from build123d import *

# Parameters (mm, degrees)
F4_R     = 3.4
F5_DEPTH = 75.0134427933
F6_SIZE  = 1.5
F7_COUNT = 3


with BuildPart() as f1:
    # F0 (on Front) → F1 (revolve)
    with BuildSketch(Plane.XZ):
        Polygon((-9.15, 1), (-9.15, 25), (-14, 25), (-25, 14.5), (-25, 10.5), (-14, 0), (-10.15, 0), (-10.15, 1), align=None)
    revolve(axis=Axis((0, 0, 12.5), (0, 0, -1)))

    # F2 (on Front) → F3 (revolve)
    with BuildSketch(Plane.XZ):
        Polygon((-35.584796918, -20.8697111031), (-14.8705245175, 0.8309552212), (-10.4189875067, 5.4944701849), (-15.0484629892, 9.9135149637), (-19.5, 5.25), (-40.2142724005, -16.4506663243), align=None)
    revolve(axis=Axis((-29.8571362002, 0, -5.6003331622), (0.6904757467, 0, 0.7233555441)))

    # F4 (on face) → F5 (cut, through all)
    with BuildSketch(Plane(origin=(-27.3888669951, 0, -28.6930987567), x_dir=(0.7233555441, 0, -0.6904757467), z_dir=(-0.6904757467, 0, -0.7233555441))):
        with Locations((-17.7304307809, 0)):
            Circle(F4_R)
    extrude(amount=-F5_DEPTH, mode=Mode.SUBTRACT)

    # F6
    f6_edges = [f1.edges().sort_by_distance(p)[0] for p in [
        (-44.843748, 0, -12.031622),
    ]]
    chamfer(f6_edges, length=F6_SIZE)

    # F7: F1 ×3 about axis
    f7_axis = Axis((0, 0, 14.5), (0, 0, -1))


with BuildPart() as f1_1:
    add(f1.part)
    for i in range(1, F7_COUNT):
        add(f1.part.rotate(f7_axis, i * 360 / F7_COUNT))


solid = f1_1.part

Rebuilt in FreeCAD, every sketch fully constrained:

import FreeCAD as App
import Part
import Sketcher

V = App.Vector


def edges_at(feature, points):
    """Names of the edges that pass closest to the given points."""
    edges = feature.Shape.Edges
    near = lambda p: min(range(len(edges)), key=lambda i: edges[i].distToShape(Part.Vertex(*p))[0])
    return sorted({f"Edge{near(p) + 1}" for p in points})

doc = App.newDocument("Part")
body = doc.addObject("PartDesign::Body", "Body")

# Sketch on XZ plane
sketch1 = doc.addObject("Sketcher::SketchObject", "Sketch")
body.addObject(sketch1)
sketch1.AttachmentSupport = (doc.XZ_Plane, [""])
sketch1.MapMode = "FlatFace"
sketch1.addGeometry(Part.LineSegment(V(-9.2, 1, 0), V(-9.2, 25, 0)), False)
sketch1.addGeometry(Part.LineSegment(V(-9.2, 25, 0), V(-14, 25, 0)), False)
sketch1.addGeometry(Part.LineSegment(V(-14, 25, 0), V(-25, 14.5, 0)), False)
sketch1.addGeometry(Part.LineSegment(V(-25, 14.5, 0), V(-25, 10.5, 0)), False)
sketch1.addGeometry(Part.LineSegment(V(-25, 10.5, 0), V(-14, 0, 0)), False)
sketch1.addGeometry(Part.LineSegment(V(-14, 0, 0), V(-10.2, 0, 0)), False)
sketch1.addGeometry(Part.LineSegment(V(-10.2, 0, 0), V(-10.2, 1, 0)), False)
sketch1.addGeometry(Part.LineSegment(V(-10.2, 1, 0), V(-9.2, 1, 0)), False)
sketch1.addConstraint(Sketcher.Constraint("Coincident", 0, 2, 1, 1))
sketch1.addConstraint(Sketcher.Constraint("Coincident", 1, 2, 2, 1))
sketch1.addConstraint(Sketcher.Constraint("Coincident", 2, 2, 3, 1))
sketch1.addConstraint(Sketcher.Constraint("Coincident", 3, 2, 4, 1))
sketch1.addConstraint(Sketcher.Constraint("Coincident", 4, 2, 5, 1))
sketch1.addConstraint(Sketcher.Constraint("Coincident", 5, 2, 6, 1))
sketch1.addConstraint(Sketcher.Constraint("Coincident", 6, 2, 7, 1))
sketch1.addConstraint(Sketcher.Constraint("Coincident", 7, 2, 0, 1))
sketch1.addConstraint(Sketcher.Constraint("Vertical", 0))
sketch1.addConstraint(Sketcher.Constraint("Horizontal", 1))
sketch1.addConstraint(Sketcher.Constraint("Vertical", 3))
sketch1.addConstraint(Sketcher.Constraint("Horizontal", 5))
sketch1.addConstraint(Sketcher.Constraint("Vertical", 6))
sketch1.addConstraint(Sketcher.Constraint("Horizontal", 7))
sketch1.addConstraint(Sketcher.Constraint("PointOnObject", 4, 2, -1))
sketch1.addConstraint(Sketcher.Constraint("Vertical", 1, 2, 4, 2))
sketch1.addConstraint(Sketcher.Constraint("Equal", 7, 6))
sketch1.addConstraint(Sketcher.Constraint("Equal", 2, 4))
sketch1.addConstraint(Sketcher.Constraint("DistanceX", 7, 1, 7, 2, 1.0))
sketch1.addConstraint(Sketcher.Constraint("DistanceY", 0, 1, 0, 2, 24.0))
sketch1.addConstraint(Sketcher.Constraint("DistanceY", 3, 2, 3, 1, 4.0))
sketch1.addConstraint(Sketcher.Constraint("DistanceX", 1, 2, -1, 1, 14.0))
sketch1.addConstraint(Sketcher.Constraint("DistanceX", 2, 2, -1, 1, 25.0))
sketch1.addConstraint(Sketcher.Constraint("DistanceX", 1, 2, 1, 1, 4.85))
revolution = doc.addObject("PartDesign::Revolution", "Revolution")
body.addObject(revolution)
revolution.Profile = sketch1
revolution.ReferenceAxis = (sketch1, ["V_Axis"])
revolution.Angle = 360

# Sketch on XZ plane
sketch2 = doc.addObject("Sketcher::SketchObject", "Sketch001")
body.addObject(sketch2)
sketch2.AttachmentSupport = (doc.XZ_Plane, [""])
sketch2.MapMode = "FlatFace"
sketch2.addGeometry(Part.LineSegment(V(-36, -21, 0), V(-15, 1, 0)), False)
sketch2.addGeometry(Part.LineSegment(V(-15, 1, 0), V(-10, 5, 0)), False)
sketch2.addGeometry(Part.LineSegment(V(-10, 5, 0), V(-15, 10, 0)), False)
sketch2.addGeometry(Part.LineSegment(V(-15, 10, 0), V(-20, 5, 0)), False)
sketch2.addGeometry(Part.LineSegment(V(-20, 5, 0), V(-40, -16, 0)), False)
sketch2.addGeometry(Part.LineSegment(V(-40, -16, 0), V(-36, -21, 0)), False)
sketch2.addGeometry(Part.LineSegment(V(-40, -16, 0), V(-15, 10, 0)), True)  # axis
sketch2.addConstraint(Sketcher.Constraint("Coincident", 0, 2, 1, 1))
sketch2.addConstraint(Sketcher.Constraint("Coincident", 1, 2, 2, 1))
sketch2.addConstraint(Sketcher.Constraint("Coincident", 2, 2, 3, 1))
sketch2.addConstraint(Sketcher.Constraint("Coincident", 3, 2, 4, 1))
sketch2.addConstraint(Sketcher.Constraint("Coincident", 4, 2, 5, 1))
sketch2.addConstraint(Sketcher.Constraint("Coincident", 5, 2, 0, 1))
sketch2.addConstraint(Sketcher.Constraint("Coincident", 6, 1, 4, 2))
sketch2.addConstraint(Sketcher.Constraint("Coincident", 6, 2, 2, 2))
sketch2.addConstraint(Sketcher.Constraint("Parallel", 0, 1))
sketch2.addConstraint(Sketcher.Constraint("Perpendicular", 1, 2))
sketch2.addConstraint(Sketcher.Constraint("Perpendicular", 2, 3))
sketch2.addConstraint(Sketcher.Constraint("Parallel", 3, 4))
sketch2.addConstraint(Sketcher.Constraint("Perpendicular", 4, 5))
sketch2.addConstraint(Sketcher.Constraint("Equal", 1, 3))
sketch2.addConstraint(Sketcher.Constraint("Distance", 0, 30.0))
sketch2.addConstraint(Sketcher.Constraint("Distance", 2, 6.4))
sketch2.addConstraint(Sketcher.Constraint("DistanceX", 3, 2, -1, 1, 19.5))
sketch2.addConstraint(Sketcher.Constraint("DistanceY", -1, 1, 3, 2, 5.25))
sketch2.addConstraint(Sketcher.Constraint("DistanceY", -1, 1, 1, 2, 5.49447))
sketch2.addConstraint(Sketcher.Constraint("DistanceY", 5, 2, -1, 1, 20.869711))
revolution2 = doc.addObject("PartDesign::Revolution", "Revolution001")
body.addObject(revolution2)
revolution2.Profile = sketch2
revolution2.ReferenceAxis = (sketch2, ["Axis0"])
revolution2.Angle = 360

# Sketch on an angled plane
sketch3 = doc.addObject("Sketcher::SketchObject", "Sketch002")
body.addObject(sketch3)
sketch3.Placement = App.Placement(V(-27.388867, 0, -28.693099), App.Rotation(V(0.723355544, 0, -0.690475747), V(0, -1, 0), V(-0.690475747, 0, -0.723355544), "ZXY"))
sketch3.addGeometry(Part.Circle(V(-17.7, 0, 0), V(0, 0, 1), 3.4), False)
sketch3.addConstraint(Sketcher.Constraint("PointOnObject", 0, 3, -1))
sketch3.addConstraint(Sketcher.Constraint("Diameter", 0, 6.8))
sketch3.addConstraint(Sketcher.Constraint("DistanceX", 0, 3, -1, 1, 17.730431))
pocket1 = doc.addObject("PartDesign::Pocket", "Pocket")
body.addObject(pocket1)
pocket1.Profile = sketch3
pocket1.Type = "ThroughAll"
doc.recompute()

chamfer = doc.addObject("PartDesign::Chamfer", "Chamfer")
body.addObject(chamfer)
chamfer.Base = (pocket1, edges_at(pocket1, [(-44.844, 0, -12.032)]))
chamfer.Size = 1.5
body2 = doc.addObject("PartDesign::Body", "Body001")
doc.recompute()

body2.BaseFeature = body
doc.recompute()

body3 = doc.addObject("PartDesign::Body", "Body002")
body3.BaseFeature = body
body3.Placement = App.Placement(V(0, 0, 0), App.Rotation(V(0, 0, -1), 120))
boolean = doc.addObject("PartDesign::Boolean", "Boolean")
body2.addObject(boolean)
boolean.Type = "Fuse"
boolean.addObjects([body3])
doc.recompute()

body.Placement = App.Placement(V(0, 0, 0), App.Rotation(V(0, 0, -1), 240))
boolean2 = doc.addObject("PartDesign::Boolean", "Boolean001")
body2.addObject(boolean2)
boolean2.Type = "Fuse"
boolean2.addObjects([body])

doc.recompute()
